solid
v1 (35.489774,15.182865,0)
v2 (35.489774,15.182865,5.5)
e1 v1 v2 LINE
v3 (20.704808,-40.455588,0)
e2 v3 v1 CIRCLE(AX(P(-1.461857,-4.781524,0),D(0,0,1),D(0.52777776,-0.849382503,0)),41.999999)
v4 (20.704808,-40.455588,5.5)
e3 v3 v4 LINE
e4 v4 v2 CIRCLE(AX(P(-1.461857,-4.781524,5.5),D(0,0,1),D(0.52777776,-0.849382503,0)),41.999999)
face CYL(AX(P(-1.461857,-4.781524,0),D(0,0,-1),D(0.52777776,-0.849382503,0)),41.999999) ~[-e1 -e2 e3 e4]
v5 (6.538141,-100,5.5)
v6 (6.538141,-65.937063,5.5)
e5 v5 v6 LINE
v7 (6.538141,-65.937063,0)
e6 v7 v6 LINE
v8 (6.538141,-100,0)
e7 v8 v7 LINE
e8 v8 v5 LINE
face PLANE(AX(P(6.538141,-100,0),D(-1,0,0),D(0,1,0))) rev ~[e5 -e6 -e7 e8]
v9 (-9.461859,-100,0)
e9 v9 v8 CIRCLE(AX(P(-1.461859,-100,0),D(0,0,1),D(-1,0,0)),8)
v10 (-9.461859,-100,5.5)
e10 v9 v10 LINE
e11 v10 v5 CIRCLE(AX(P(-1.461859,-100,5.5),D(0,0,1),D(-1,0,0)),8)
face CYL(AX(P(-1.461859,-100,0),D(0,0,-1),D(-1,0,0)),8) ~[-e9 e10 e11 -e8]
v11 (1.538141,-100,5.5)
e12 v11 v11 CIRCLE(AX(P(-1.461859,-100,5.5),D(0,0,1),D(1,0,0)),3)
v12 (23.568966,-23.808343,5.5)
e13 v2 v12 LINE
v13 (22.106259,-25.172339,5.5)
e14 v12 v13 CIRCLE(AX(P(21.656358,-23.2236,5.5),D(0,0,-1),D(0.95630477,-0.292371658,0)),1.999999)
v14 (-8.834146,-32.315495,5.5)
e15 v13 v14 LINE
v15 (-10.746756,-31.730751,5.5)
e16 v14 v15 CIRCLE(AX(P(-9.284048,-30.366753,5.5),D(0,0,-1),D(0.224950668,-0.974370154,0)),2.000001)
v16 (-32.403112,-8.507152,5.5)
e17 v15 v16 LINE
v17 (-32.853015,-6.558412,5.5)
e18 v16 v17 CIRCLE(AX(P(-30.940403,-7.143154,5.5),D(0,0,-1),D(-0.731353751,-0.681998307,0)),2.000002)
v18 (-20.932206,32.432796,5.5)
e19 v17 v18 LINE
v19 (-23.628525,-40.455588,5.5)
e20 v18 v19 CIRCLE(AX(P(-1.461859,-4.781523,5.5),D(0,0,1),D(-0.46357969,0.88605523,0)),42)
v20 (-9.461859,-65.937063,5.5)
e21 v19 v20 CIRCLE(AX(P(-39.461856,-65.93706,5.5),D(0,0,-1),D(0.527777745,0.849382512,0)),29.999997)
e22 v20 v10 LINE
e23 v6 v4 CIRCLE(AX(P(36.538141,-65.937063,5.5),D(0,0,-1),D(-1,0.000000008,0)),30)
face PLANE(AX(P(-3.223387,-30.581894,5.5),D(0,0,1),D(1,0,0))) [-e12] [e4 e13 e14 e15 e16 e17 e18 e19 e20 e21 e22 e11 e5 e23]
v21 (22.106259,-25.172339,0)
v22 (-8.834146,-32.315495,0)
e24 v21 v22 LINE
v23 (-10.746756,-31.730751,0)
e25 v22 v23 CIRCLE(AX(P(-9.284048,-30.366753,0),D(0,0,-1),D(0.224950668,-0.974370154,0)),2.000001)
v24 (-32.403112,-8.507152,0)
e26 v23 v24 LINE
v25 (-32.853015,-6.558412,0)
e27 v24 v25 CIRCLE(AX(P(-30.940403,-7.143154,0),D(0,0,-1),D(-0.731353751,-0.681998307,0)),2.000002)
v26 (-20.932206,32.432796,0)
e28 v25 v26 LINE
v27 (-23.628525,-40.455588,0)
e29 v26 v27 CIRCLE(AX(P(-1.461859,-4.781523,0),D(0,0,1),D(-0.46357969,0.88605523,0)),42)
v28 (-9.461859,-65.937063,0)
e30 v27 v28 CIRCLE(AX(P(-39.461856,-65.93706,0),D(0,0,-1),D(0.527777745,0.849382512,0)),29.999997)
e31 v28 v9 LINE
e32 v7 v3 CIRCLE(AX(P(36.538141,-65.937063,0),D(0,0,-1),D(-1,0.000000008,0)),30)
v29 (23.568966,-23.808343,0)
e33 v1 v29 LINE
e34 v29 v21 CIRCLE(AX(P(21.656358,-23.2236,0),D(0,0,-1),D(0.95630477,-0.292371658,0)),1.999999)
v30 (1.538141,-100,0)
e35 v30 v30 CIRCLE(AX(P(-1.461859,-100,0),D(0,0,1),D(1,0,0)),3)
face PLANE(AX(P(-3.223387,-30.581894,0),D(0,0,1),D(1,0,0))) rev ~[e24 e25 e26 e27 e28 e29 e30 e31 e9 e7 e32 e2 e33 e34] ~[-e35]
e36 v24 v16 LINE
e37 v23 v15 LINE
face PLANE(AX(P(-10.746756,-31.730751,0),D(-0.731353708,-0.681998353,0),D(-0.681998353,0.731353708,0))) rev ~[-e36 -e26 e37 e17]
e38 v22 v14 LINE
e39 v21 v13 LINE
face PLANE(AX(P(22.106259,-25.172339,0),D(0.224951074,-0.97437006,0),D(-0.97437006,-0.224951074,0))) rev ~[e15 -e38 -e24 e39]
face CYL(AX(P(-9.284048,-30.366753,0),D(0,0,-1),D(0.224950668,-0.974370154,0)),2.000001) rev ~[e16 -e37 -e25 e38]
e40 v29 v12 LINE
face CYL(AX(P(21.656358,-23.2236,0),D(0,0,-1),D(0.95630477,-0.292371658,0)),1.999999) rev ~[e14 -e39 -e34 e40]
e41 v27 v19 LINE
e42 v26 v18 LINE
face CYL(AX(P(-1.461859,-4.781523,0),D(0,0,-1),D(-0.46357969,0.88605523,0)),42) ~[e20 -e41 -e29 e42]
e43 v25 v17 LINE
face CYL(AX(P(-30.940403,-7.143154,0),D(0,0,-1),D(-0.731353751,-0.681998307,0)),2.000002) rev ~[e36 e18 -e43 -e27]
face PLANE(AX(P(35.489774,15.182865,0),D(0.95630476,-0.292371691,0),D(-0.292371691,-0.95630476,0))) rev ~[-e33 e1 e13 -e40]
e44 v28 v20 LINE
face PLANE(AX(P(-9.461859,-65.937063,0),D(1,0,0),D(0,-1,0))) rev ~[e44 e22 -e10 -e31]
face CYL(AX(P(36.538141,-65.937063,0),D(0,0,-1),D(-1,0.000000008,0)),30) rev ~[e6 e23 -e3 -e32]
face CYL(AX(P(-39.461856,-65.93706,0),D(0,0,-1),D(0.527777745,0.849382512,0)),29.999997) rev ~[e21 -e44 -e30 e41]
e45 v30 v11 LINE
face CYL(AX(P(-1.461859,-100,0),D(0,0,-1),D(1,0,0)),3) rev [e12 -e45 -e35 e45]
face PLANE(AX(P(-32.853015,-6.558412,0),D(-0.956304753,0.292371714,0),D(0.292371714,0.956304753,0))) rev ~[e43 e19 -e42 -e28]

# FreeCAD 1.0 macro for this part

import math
import FreeCAD as App
import Part
import Sketcher
from FreeCAD import Vector
Q = App.Units.Quantity

doc = App.newDocument("Part")
body = doc.addObject("PartDesign::Body", "Body")

sketch1 = doc.addObject("Sketcher::SketchObject", "Sketch")
body.addObject(sketch1)
sketch1.AttachmentSupport = (doc.XY_Plane, [""])
sketch1.MapMode = "FlatFace"
sketch1.addGeometry([
    Part.ArcOfCircle(Part.Circle(Vector(-1.5, -4.8, 0), Vector(0, 0, 1), 42), math.radians(-58), math.radians(28)),
    Part.LineSegment(Vector(35.5, 15.2, 0), Vector(23.6, -23.8, 0)),
    Part.ArcOfCircle(Part.Circle(Vector(21.7, -23.2, 0), Vector(0, 0, 1), 2), math.radians(-77), math.radians(-17)),
    Part.LineSegment(Vector(22.1, -25.2, 0), Vector(-8.8, -32.3, 0)),
    Part.ArcOfCircle(Part.Circle(Vector(-9.3, -30.4, 0), Vector(0, 0, 1), 2), math.radians(-137), math.radians(-77)),
    Part.LineSegment(Vector(-10.7, -31.7, 0), Vector(-32.4, -8.5, 0)),
    Part.ArcOfCircle(Part.Circle(Vector(-30.9, -7.1, 0), Vector(0, 0, 1), 2), math.radians(163), math.radians(223)),
    Part.LineSegment(Vector(-32.9, -6.6, 0), Vector(-20.9, 32.4, 0)),
    Part.ArcOfCircle(Part.Circle(Vector(-1.5, -4.8, 0), Vector(0, 0, 1), 42), math.radians(118), math.radians(238)),
    Part.ArcOfCircle(Part.Circle(Vector(-39.5, -65.9, 0), Vector(0, 0, 1), 30), math.radians(0), math.radians(58)),
    Part.LineSegment(Vector(-9.5, -65.9, 0), Vector(-9.5, -100, 0)),
    Part.ArcOfCircle(Part.Circle(Vector(-1.5, -100, 0), Vector(0, 0, 1), 8), math.radians(180), math.radians(360)),
    Part.LineSegment(Vector(6.5, -100, 0), Vector(6.5, -65.9, 0)),
    Part.ArcOfCircle(Part.Circle(Vector(36.5, -65.9, 0), Vector(0, 0, 1), 30), math.radians(122), math.radians(180)),
    Part.Circle(Vector(-1.5, -100, 0), Vector(0, 0, 1), 3),
], False)
sketch1.addConstraint([
    Sketcher.Constraint("Coincident", 0, 2, 1, 1),
    Sketcher.Constraint("Tangent", 1, 2, 2, 2),
    Sketcher.Constraint("Tangent", 2, 1, 3, 1),
    Sketcher.Constraint("Tangent", 3, 2, 4, 2),
    Sketcher.Constraint("Tangent", 4, 1, 5, 1),
    Sketcher.Constraint("Tangent", 5, 2, 6, 2),
    Sketcher.Constraint("Tangent", 6, 1, 7, 1),
    Sketcher.Constraint("Coincident", 7, 2, 8, 1),
    Sketcher.Constraint("Tangent", 8, 2, 9, 2),
    Sketcher.Constraint("Tangent", 9, 1, 10, 1),
    Sketcher.Constraint("Tangent", 10, 2, 11, 1),
    Sketcher.Constraint("Tangent", 11, 2, 12, 1),
    Sketcher.Constraint("Tangent", 12, 2, 13, 2),
    Sketcher.Constraint("Tangent", 13, 1, 0, 1),
    Sketcher.Constraint("Vertical", 10),
    Sketcher.Constraint("Vertical", 12),
    Sketcher.Constraint("Coincident", 8, 3, 0, 3),
    Sketcher.Constraint("Coincident", 14, 3, 11, 3),
    Sketcher.Constraint("Equal", 4, 6),
    Sketcher.Constraint("Equal", 0, 8),
    Sketcher.Constraint("Parallel", 1, 7),
    Sketcher.Constraint("Horizontal", 13, 3, 9, 1),
    Sketcher.Constraint("Horizontal", 8, 2, 13, 1),
    Sketcher.Constraint("Equal", 3, 5),
    Sketcher.Constraint("Equal", 1, 7),
    Sketcher.Constraint("Diameter", 14, Q("6 mm")),
    Sketcher.Constraint("Radius", 0, Q("41.999999 mm")),
    Sketcher.Constraint("Radius", 2, Q("1.999999 mm")),
    Sketcher.Constraint("Radius", 4, Q("2.000001 mm")),
    Sketcher.Constraint("Radius", 11, Q("8 mm")),
    Sketcher.Constraint("Radius", 13, Q("30 mm")),
    Sketcher.Constraint("Angle", 1, Q("-106.999999 deg")),
    Sketcher.Constraint("Angle", 3, Q("-166.999999 deg")),
    Sketcher.Constraint("Angle", 5, Q("132.999999 deg")),
    Sketcher.Constraint("DistanceY", 11, 3, -1, 1, Q("100 mm")),
    Sketcher.Constraint("DistanceY", 2, 3, -1, 1, Q("23.2236 mm")),
    Sketcher.Constraint("DistanceY", 4, 3, 6, 3, Q("23.223599 mm")),
    Sketcher.Constraint("DistanceX", 4, 1, 0, 3, Q("9.284899 mm")),
    Sketcher.Constraint("DistanceX", 8, 3, -1, 1, Q("1.461859 mm")),
])
pad1 = doc.addObject("PartDesign::Pad", "Pad")
body.addObject(pad1)
pad1.Profile = sketch1
pad1.Length = 5.5

doc.recompute()
